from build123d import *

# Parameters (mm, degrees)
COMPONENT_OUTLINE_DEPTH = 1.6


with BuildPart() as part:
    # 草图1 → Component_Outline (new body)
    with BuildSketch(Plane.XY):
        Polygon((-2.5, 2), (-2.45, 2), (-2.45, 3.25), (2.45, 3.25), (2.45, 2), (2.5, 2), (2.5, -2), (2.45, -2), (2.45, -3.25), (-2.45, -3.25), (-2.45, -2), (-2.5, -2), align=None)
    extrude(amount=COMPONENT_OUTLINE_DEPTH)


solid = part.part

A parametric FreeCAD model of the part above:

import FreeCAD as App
import Part
import Sketcher

V = App.Vector


def add_polygon(sketch, points):
    """Adds a closed chain of lines whose ends are joined by coincident constraints."""
    first, n = sketch.GeometryCount, len(points)
    for a, b in zip(points, points[1:] + points[:1]):
        sketch.addGeometry(Part.LineSegment(App.Vector(*a, 0), App.Vector(*b, 0)), False)
    for i in range(n):
        sketch.addConstraint(Sketcher.Constraint("Coincident", first + i, 2, first + (i + 1) % n, 1))

doc = App.newDocument("Part")
body = doc.addObject("PartDesign::Body", "Body")

# Sketch on XY plane
sketch1 = body.newObject("Sketcher::SketchObject", "Sketch")
sketch1.AttachmentSupport = (doc.getObject("XY_Plane"), [""])
sketch1.MapMode = "FlatFace"
add_polygon(sketch1, [(-2.45, 2), (-2.5, 2), (-2.5, -2), (-2.45, -2), (-2.45, -3.25), (2.45, -3.25), (2.45, -2), (2.5, -2), (2.5, 2), (2.45, 2), (2.45, 3.25), (-2.45, 3.25)])  # lines 0-11
sketch1.addConstraint(Sketcher.Constraint("Horizontal", 0))
sketch1.addConstraint(Sketcher.Constraint("Vertical", 1))
sketch1.addConstraint(Sketcher.Constraint("Horizontal", 2))
sketch1.addConstraint(Sketcher.Constraint("Vertical", 3))
sketch1.addConstraint(Sketcher.Constraint("Horizontal", 4))
sketch1.addConstraint(Sketcher.Constraint("Vertical", 5))
sketch1.addConstraint(Sketcher.Constraint("Horizontal", 6))
sketch1.addConstraint(Sketcher.Constraint("Vertical", 7))
sketch1.addConstraint(Sketcher.Constraint("Horizontal", 8))
sketch1.addConstraint(Sketcher.Constraint("Vertical", 9))
sketch1.addConstraint(Sketcher.Constraint("Horizontal", 10))
sketch1.addConstraint(Sketcher.Constraint("Vertical", 11))
sketch1.addConstraint(Sketcher.Constraint("Symmetric", 0, 2, 6, 2, -1, 1))
sketch1.addConstraint(Sketcher.Constraint("Symmetric", 2, 2, 8, 2, -1, 1))
sketch1.addConstraint(Sketcher.Constraint("Symmetric", 4, 2, 10, 2, -1, 1))
sketch1.addConstraint(Sketcher.Constraint("Symmetric", 2, 2, 5, 2, -2))
sketch1.addConstraint(Sketcher.Constraint("DistanceY", 1, 2, 1, 1, 4.0))
sketch1.addConstraint(Sketcher.Constraint("DistanceX", 4, 1, 4, 2, 4.9))
sketch1.addConstraint(Sketcher.Constraint("DistanceX", 1, 2, 6, 2, 5.0))
sketch1.addConstraint(Sketcher.Constraint("DistanceY", 3, 2, 3, 1, 1.25))
pad1 = body.newObject("PartDesign::Pad", "Pad")
pad1.Profile = sketch1
pad1.Length = 1.6

doc.recompute()
